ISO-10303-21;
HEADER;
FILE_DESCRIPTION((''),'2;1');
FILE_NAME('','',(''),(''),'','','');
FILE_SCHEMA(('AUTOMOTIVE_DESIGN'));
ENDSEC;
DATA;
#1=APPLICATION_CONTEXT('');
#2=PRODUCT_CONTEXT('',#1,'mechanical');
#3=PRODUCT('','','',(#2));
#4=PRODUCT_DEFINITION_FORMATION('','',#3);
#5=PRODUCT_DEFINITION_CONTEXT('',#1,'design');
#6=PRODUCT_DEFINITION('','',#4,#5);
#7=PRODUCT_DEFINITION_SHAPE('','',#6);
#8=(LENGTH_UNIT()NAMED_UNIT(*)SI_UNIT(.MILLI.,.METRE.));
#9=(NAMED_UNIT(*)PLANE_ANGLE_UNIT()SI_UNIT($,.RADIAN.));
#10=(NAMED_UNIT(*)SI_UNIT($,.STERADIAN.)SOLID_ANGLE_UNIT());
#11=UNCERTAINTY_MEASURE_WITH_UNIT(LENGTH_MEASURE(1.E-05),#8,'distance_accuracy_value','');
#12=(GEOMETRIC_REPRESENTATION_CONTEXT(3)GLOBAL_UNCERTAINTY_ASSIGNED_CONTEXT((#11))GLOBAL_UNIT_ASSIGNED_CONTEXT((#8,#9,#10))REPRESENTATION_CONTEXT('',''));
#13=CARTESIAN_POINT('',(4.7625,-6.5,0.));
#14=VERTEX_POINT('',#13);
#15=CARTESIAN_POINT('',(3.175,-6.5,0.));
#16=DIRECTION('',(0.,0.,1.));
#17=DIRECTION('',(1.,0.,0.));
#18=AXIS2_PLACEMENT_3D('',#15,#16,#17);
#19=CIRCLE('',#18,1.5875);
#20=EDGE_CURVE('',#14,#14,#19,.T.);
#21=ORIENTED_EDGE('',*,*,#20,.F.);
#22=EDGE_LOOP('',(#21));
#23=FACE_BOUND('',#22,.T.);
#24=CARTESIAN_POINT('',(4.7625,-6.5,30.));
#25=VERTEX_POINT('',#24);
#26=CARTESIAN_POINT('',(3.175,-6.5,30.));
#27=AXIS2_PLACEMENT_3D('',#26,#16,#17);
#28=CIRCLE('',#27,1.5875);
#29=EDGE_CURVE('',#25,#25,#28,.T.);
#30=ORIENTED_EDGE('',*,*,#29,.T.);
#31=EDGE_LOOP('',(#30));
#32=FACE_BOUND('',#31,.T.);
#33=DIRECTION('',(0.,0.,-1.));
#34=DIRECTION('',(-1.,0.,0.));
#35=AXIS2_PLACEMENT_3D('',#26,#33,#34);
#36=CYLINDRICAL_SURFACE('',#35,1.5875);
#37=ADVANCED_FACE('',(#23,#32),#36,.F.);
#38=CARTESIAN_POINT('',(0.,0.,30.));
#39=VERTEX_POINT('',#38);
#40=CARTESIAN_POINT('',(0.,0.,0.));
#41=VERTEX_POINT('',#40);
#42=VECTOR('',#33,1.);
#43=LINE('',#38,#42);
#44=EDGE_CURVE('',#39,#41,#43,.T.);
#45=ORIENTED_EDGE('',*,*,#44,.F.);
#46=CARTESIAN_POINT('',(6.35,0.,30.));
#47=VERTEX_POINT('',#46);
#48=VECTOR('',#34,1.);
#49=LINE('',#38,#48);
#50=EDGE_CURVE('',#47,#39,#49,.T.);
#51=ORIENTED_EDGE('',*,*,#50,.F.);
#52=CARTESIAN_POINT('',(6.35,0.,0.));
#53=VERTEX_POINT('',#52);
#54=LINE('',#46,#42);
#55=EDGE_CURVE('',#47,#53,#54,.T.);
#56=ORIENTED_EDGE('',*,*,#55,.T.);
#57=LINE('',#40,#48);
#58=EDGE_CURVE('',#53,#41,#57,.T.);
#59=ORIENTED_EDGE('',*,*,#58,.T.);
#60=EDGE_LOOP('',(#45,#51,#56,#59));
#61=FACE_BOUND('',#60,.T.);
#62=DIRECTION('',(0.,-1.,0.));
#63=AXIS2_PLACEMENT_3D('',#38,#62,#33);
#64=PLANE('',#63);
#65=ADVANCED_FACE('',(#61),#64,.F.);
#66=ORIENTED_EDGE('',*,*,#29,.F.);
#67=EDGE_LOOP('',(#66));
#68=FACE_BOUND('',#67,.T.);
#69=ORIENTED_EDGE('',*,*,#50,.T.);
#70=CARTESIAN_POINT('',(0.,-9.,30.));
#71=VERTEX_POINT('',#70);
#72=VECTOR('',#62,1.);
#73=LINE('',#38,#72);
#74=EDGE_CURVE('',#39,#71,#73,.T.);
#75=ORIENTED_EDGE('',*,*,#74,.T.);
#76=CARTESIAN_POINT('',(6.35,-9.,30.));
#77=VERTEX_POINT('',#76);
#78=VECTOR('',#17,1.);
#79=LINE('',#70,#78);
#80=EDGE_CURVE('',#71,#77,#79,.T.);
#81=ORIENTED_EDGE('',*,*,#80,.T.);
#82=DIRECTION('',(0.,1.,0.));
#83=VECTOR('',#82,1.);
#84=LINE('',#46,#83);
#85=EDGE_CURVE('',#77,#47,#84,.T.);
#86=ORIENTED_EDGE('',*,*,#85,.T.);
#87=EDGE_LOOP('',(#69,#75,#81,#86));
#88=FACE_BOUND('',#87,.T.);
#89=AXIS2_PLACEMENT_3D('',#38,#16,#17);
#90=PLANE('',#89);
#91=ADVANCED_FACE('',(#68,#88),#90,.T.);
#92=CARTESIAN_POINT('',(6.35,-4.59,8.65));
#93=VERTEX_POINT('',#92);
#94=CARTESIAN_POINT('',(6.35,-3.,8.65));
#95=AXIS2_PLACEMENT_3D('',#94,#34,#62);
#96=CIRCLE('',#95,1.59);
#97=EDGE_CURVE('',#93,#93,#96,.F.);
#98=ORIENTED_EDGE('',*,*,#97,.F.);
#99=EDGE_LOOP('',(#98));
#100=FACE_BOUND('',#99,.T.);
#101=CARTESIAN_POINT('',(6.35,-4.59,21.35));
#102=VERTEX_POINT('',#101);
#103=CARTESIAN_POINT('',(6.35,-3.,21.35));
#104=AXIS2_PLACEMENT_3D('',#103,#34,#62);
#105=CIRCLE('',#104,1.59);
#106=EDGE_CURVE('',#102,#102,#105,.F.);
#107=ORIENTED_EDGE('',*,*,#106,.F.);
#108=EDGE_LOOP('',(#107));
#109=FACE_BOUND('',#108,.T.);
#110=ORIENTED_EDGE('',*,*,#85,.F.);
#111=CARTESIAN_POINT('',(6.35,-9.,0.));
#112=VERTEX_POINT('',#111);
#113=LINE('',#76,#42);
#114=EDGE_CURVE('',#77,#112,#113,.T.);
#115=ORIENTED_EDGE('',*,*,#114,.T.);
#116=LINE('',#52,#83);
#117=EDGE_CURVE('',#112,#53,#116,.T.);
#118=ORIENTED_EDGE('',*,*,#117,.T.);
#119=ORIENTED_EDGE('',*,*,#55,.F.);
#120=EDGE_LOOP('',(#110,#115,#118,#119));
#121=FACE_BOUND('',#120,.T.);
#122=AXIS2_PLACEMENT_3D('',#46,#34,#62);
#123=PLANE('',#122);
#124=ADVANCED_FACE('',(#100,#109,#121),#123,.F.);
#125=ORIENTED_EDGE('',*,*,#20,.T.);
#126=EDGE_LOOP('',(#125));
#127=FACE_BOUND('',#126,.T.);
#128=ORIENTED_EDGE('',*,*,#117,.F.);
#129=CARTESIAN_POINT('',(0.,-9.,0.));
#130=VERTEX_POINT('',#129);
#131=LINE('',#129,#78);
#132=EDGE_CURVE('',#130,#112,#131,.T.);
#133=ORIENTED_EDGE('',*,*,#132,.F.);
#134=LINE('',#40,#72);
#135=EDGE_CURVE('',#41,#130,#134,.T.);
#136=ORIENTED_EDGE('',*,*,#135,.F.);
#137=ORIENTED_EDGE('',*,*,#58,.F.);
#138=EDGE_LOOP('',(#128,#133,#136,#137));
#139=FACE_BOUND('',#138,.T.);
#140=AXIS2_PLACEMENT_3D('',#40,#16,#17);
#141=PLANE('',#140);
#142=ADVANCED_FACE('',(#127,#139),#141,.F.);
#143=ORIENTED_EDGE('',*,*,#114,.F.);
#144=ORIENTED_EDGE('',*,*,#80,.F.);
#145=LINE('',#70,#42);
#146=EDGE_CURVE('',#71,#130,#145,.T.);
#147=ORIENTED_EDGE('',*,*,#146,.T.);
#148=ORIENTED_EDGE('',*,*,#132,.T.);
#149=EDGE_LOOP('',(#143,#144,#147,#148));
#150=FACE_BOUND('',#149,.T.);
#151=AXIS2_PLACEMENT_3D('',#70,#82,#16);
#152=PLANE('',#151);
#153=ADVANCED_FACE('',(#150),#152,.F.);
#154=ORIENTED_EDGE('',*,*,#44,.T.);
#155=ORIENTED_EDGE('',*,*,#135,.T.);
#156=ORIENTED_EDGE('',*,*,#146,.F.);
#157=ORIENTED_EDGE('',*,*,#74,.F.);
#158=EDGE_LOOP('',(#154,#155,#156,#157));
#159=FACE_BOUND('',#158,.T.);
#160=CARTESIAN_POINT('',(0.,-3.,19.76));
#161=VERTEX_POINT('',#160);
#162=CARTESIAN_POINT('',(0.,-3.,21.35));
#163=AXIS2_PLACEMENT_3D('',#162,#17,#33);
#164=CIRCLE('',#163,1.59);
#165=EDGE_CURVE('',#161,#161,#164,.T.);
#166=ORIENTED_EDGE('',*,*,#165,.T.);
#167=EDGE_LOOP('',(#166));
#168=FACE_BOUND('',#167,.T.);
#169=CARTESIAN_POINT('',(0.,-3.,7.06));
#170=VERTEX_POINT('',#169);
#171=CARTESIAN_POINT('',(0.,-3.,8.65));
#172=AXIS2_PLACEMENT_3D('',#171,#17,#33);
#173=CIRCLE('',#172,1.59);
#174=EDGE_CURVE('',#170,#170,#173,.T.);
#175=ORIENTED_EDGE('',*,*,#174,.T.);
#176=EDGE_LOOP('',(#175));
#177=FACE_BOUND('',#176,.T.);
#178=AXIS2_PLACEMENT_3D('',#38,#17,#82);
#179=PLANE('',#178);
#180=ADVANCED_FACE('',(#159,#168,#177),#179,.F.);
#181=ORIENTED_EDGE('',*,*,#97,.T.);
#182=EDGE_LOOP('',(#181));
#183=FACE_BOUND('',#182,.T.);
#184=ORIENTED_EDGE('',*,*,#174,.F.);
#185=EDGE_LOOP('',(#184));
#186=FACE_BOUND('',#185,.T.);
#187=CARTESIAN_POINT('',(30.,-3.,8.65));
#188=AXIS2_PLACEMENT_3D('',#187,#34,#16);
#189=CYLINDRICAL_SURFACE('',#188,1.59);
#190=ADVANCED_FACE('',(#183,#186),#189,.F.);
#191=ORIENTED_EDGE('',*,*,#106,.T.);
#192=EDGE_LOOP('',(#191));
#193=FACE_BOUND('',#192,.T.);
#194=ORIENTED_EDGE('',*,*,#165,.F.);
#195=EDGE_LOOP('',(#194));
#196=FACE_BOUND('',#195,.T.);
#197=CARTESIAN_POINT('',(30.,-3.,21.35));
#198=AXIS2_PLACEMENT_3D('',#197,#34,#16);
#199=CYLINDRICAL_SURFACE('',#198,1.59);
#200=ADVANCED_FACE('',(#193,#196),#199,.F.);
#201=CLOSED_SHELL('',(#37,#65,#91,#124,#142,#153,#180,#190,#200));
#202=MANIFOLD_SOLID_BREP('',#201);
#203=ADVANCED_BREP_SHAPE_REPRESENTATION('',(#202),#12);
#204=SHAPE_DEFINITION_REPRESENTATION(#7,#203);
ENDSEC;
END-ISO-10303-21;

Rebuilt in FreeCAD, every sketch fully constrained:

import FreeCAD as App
import Part
import Sketcher

doc = App.newDocument("Part")
body = doc.addObject("PartDesign::Body", "Body")

# Sketch on XY plane
sketch1 = body.newObject("Sketcher::SketchObject", "Sketch")
sketch1.AttachmentSupport = (doc.getObject("XY_Plane"), [""])
sketch1.MapMode = "FlatFace"
sketch1.addGeometry(Part.LineSegment(App.Vector(0, 0, 0), App.Vector(0, -9, 0)), False)
sketch1.addGeometry(Part.LineSegment(App.Vector(0, -9, 0), App.Vector(6.35, -9, 0)), False)
sketch1.addGeometry(Part.LineSegment(App.Vector(6.35, -9, 0), App.Vector(6.35, 0, 0)), False)
sketch1.addGeometry(Part.LineSegment(App.Vector(6.35, 0, 0), App.Vector(0, 0, 0)), False)
sketch1.addGeometry(Part.Circle(App.Vector(3.175, -6.5, 0), App.Vector(0, 0, 1), 1.5875), False)
sketch1.addConstraint(Sketcher.Constraint("Coincident", 0, 2, 1, 1))
sketch1.addConstraint(Sketcher.Constraint("Coincident", 1, 2, 2, 1))
sketch1.addConstraint(Sketcher.Constraint("Coincident", 2, 2, 3, 1))
sketch1.addConstraint(Sketcher.Constraint("Coincident", 3, 2, 0, 1))
sketch1.addConstraint(Sketcher.Constraint("Vertical", 0))
sketch1.addConstraint(Sketcher.Constraint("Horizontal", 1))
sketch1.addConstraint(Sketcher.Constraint("Vertical", 2))
sketch1.addConstraint(Sketcher.Constraint("Horizontal", 3))
sketch1.addConstraint(Sketcher.Constraint("Coincident", 3, 2, -1, 1))
sketch1.addConstraint(Sketcher.Constraint("DistanceY", 0, 2, 0, 1, 9.0))
sketch1.addConstraint(Sketcher.Constraint("Diameter", 4, 3.175))
sketch1.addConstraint(Sketcher.Constraint("DistanceX", 1, 1, 1, 2, 6.35))
sketch1.addConstraint(Sketcher.Constraint("DistanceY", 4, 3, -1, 1, 6.5))
sketch1.addConstraint(Sketcher.Constraint("DistanceX", -1, 1, 4, 3, 3.175))
pad1 = body.newObject("PartDesign::Pad", "Pad")
pad1.Profile = sketch1
pad1.Length = 30

# Sketch on YZ plane
sketch2 = body.newObject("Sketcher::SketchObject", "Sketch001")
sketch2.AttachmentSupport = (doc.getObject("YZ_Plane"), [""])
sketch2.MapMode = "FlatFace"
sketch2.addGeometry(Part.Circle(App.Vector(-3, 21.35, 0), App.Vector(0, 0, 1), 1.59), False)
sketch2.addGeometry(Part.Circle(App.Vector(-3, 8.65, 0), App.Vector(0, 0, 1), 1.59), False)
sketch2.addConstraint(Sketcher.Constraint("Equal", 0, 1))
sketch2.addConstraint(Sketcher.Constraint("Vertical", 0, 3, 1, 3))
sketch2.addConstraint(Sketcher.Constraint("Diameter", 0, 3.18))
sketch2.addConstraint(Sketcher.Constraint("DistanceX", 0, 3, -1, 1, 3.0))
sketch2.addConstraint(Sketcher.Constraint("DistanceY", 1, 3, 0, 3, 12.7))
sketch2.addConstraint(Sketcher.Constraint("DistanceY", -1, 1, 0, 3, 21.35))
pocket1 = body.newObject("PartDesign::Pocket", "Pocket")
pocket1.Profile = sketch2
pocket1.Length = 30
pocket1.Reversed = True

doc.recompute()
